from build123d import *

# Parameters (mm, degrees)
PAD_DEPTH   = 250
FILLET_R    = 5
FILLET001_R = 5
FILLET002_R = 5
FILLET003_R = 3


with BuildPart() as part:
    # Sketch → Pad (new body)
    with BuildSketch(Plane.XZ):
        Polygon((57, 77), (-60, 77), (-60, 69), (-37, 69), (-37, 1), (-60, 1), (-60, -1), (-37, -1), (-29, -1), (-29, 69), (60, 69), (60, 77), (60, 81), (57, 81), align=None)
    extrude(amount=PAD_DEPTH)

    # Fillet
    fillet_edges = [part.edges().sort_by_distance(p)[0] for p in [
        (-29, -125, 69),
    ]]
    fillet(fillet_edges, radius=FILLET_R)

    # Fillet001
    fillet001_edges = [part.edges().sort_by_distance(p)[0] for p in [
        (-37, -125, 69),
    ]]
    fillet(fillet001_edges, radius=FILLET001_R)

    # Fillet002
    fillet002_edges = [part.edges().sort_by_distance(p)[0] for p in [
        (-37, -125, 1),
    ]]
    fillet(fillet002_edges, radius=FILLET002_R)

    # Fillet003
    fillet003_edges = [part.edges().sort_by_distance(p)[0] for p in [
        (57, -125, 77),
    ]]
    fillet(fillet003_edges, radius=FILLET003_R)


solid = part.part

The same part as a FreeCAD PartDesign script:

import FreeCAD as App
import Part
import Sketcher
Q = App.Units.Quantity


def edges_at(feature, points):
    """Names of the edges that pass closest to the given points."""
    edges = feature.Shape.Edges
    near = lambda p: min(range(len(edges)), key=lambda i: edges[i].distToShape(Part.Vertex(*p))[0])
    return sorted({f"Edge{near(p) + 1}" for p in points})


def add_polygon(sketch, points):
    """Adds a closed chain of lines whose ends are joined by coincident constraints."""
    first, n = sketch.GeometryCount, len(points)
    for a, b in zip(points, points[1:] + points[:1]):
        sketch.addGeometry(Part.LineSegment(App.Vector(*a, 0), App.Vector(*b, 0)), False)
    for i in range(n):
        sketch.addConstraint(Sketcher.Constraint("Coincident", first + i, 2, first + (i + 1) % n, 1))

doc = App.newDocument("Part")
body = doc.addObject("PartDesign::Body", "Body")

# Sketch on XZ plane
sketch1 = body.newObject("Sketcher::SketchObject", "Sketch")
sketch1.AttachmentSupport = (doc.getObject("XZ_Plane"), [""])
sketch1.MapMode = "FlatFace"
add_polygon(sketch1, [(57, 77), (-60, 77), (-60, 69), (-37, 69), (-37, 1), (-60, 1), (-60, -1), (-29, -1), (-29, 69), (60, 69), (60, 81), (57, 81)])  # lines 0-11
sketch1.addConstraint(Sketcher.Constraint("Horizontal", 0))
sketch1.addConstraint(Sketcher.Constraint("Vertical", 1))
sketch1.addConstraint(Sketcher.Constraint("Horizontal", 2))
sketch1.addConstraint(Sketcher.Constraint("Vertical", 3))
sketch1.addConstraint(Sketcher.Constraint("Horizontal", 4))
sketch1.addConstraint(Sketcher.Constraint("Vertical", 5))
sketch1.addConstraint(Sketcher.Constraint("Horizontal", 6))
sketch1.addConstraint(Sketcher.Constraint("Vertical", 7))
sketch1.addConstraint(Sketcher.Constraint("Horizontal", 8))
sketch1.addConstraint(Sketcher.Constraint("Vertical", 9))
sketch1.addConstraint(Sketcher.Constraint("Horizontal", 10))
sketch1.addConstraint(Sketcher.Constraint("Vertical", 11))
sketch1.addConstraint(Sketcher.Constraint("Symmetric", 1, 2, 8, 2, -2))
sketch1.addConstraint(Sketcher.Constraint("Vertical", 1, 2, 4, 2))
sketch1.addConstraint(Sketcher.Constraint("DistanceX", 0, 2, 0, 1, Q("117 mm")))
sketch1.addConstraint(Sketcher.Constraint("DistanceX", 2, 1, 2, 2, Q("23 mm")))
sketch1.addConstraint(Sketcher.Constraint("DistanceX", 6, 1, 6, 2, Q("31 mm")))
sketch1.addConstraint(Sketcher.Constraint("DistanceX", 8, 1, 8, 2, Q("89 mm")))
sketch1.addConstraint(Sketcher.Constraint("DistanceY", 1, 2, 1, 1, Q("8 mm")))
sketch1.addConstraint(Sketcher.Constraint("DistanceY", 3, 2, 3, 1, Q("68 mm")))
sketch1.addConstraint(Sketcher.Constraint("DistanceY", 5, 2, 5, 1, Q("2 mm")))
sketch1.addConstraint(Sketcher.Constraint("DistanceY", 9, 1, 9, 2, Q("12 mm")))
sketch1.addConstraint(Sketcher.Constraint("DistanceY", -1, 1, 0, 2, Q("77 mm")))
pad1 = body.newObject("PartDesign::Pad", "Pad")
pad1.Profile = sketch1
pad1.Length = 250
doc.recompute()

fillet = body.newObject("PartDesign::Fillet", "Fillet")
fillet.Base = (pad1, edges_at(pad1, [(-29, -125, 69)]))
fillet.Radius = 5
doc.recompute()

fillet2 = body.newObject("PartDesign::Fillet", "Fillet001")
fillet2.Base = (fillet, edges_at(fillet, [(-37, -125, 69)]))
fillet2.Radius = 5
doc.recompute()

fillet3 = body.newObject("PartDesign::Fillet", "Fillet002")
fillet3.Base = (fillet2, edges_at(fillet2, [(-37, -125, 1)]))
fillet3.Radius = 5
doc.recompute()

fillet4 = body.newObject("PartDesign::Fillet", "Fillet003")
fillet4.Base = (fillet3, edges_at(fillet3, [(57, -125, 77)]))
fillet4.Radius = 3

doc.recompute()
